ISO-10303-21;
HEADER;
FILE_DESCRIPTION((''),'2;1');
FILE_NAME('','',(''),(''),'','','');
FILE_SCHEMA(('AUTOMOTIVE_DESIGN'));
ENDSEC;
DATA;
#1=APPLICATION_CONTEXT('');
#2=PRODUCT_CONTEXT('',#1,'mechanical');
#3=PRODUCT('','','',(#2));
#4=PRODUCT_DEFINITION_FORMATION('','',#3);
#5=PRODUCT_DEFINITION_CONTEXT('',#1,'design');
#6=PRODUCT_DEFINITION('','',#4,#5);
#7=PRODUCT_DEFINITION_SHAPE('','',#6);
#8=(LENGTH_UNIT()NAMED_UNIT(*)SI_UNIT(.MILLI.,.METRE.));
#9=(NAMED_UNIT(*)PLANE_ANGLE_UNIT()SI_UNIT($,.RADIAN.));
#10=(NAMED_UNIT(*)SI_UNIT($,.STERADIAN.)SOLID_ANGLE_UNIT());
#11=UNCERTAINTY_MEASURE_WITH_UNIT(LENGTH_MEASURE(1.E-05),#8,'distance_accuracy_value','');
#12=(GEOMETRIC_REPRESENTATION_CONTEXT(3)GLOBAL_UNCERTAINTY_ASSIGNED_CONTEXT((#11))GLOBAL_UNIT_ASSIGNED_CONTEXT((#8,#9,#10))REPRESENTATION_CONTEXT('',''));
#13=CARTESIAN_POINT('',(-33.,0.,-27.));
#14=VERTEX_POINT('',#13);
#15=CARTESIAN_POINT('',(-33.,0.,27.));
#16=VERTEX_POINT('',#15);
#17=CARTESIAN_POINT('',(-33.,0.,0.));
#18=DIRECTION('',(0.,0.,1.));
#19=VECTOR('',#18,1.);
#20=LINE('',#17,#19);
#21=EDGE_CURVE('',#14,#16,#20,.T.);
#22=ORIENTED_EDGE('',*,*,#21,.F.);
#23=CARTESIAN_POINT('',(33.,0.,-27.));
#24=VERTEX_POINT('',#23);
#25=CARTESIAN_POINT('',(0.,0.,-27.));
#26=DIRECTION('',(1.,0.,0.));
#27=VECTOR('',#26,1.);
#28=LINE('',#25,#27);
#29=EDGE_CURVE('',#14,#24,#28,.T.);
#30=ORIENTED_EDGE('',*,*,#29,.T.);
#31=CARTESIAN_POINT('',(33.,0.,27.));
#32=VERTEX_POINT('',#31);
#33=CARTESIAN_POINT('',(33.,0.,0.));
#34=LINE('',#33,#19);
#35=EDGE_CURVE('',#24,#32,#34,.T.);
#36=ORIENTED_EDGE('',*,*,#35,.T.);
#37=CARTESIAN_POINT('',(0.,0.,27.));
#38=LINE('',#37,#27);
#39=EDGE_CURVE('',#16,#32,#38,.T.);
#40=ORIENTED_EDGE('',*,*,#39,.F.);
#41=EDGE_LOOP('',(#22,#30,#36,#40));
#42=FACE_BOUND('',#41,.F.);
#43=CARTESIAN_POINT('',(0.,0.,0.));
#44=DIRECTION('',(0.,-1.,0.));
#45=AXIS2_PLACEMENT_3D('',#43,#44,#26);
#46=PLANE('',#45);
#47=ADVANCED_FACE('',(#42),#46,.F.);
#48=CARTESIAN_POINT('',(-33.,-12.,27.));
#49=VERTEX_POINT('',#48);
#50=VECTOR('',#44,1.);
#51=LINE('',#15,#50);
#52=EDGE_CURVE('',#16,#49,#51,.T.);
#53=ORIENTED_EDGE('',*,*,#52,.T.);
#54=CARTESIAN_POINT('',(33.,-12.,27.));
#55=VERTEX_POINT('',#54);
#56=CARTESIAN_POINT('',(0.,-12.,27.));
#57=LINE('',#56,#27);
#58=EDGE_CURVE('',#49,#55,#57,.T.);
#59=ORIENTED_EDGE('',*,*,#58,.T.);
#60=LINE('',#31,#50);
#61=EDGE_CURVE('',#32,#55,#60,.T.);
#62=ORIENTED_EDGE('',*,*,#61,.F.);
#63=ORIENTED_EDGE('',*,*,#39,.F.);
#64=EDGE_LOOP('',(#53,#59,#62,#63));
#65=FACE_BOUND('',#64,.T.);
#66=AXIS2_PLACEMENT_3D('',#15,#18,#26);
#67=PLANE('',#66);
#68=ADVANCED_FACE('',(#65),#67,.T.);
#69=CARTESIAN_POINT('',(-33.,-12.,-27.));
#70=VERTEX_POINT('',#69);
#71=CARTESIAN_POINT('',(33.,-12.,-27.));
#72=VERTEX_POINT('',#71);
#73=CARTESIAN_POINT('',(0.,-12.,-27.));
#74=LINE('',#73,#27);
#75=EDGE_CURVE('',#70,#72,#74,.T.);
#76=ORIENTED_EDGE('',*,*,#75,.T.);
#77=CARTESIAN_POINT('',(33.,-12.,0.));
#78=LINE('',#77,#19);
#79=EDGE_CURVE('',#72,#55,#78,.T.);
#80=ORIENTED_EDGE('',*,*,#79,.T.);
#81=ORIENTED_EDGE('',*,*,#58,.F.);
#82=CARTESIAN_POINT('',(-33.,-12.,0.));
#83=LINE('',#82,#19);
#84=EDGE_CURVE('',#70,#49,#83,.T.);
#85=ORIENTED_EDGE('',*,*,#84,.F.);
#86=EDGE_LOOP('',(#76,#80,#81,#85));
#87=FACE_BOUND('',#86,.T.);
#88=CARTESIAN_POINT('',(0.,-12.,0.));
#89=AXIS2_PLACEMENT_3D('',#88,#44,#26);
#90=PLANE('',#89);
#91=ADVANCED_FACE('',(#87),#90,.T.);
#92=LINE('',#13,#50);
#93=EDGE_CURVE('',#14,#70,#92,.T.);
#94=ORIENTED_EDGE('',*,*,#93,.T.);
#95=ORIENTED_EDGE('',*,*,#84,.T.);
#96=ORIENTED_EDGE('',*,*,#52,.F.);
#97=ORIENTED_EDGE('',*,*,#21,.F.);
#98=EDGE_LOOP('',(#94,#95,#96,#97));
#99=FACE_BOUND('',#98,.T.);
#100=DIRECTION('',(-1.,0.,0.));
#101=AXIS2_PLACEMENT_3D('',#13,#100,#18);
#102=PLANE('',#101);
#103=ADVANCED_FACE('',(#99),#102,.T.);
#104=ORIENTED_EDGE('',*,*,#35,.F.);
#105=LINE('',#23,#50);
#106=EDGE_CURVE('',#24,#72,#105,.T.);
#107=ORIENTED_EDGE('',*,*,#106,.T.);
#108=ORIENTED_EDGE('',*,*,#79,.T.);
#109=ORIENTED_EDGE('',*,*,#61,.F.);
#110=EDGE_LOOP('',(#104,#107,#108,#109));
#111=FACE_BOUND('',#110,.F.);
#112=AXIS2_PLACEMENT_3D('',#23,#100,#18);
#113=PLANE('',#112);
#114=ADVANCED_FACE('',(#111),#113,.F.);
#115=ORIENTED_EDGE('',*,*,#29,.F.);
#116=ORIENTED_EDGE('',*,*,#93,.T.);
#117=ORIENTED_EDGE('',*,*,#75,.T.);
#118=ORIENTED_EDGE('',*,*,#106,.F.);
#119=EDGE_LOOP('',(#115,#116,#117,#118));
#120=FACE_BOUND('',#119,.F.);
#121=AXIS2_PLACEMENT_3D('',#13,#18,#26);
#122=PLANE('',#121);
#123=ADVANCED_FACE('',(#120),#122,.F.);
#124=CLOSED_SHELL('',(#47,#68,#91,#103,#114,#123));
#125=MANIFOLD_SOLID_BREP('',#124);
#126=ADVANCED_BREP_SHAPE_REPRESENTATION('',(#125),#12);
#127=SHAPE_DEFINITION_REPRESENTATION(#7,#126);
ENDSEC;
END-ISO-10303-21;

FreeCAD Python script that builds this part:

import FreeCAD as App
import Part
import Sketcher

V = App.Vector

doc = App.newDocument("Part")
body = doc.addObject("PartDesign::Body", "Body")

# Sketch on XZ plane
sketch1 = doc.addObject("Sketcher::SketchObject", "Sketch")
body.addObject(sketch1)
sketch1.AttachmentSupport = (doc.XZ_Plane, [""])
sketch1.MapMode = "FlatFace"
sketch1.addGeometry(Part.LineSegment(V(-101, 27, 0), V(-101, -27, 0)), False)
sketch1.addGeometry(Part.LineSegment(V(-101, -27, 0), V(109, -27, 0)), False)
sketch1.addGeometry(Part.LineSegment(V(109, -27, 0), V(109, 27, 0)), False)
sketch1.addGeometry(Part.LineSegment(V(109, 27, 0), V(-101, 27, 0)), False)
sketch1.addConstraint(Sketcher.Constraint("Coincident", 0, 2, 1, 1))
sketch1.addConstraint(Sketcher.Constraint("Coincident", 1, 2, 2, 1))
sketch1.addConstraint(Sketcher.Constraint("Coincident", 2, 2, 3, 1))
sketch1.addConstraint(Sketcher.Constraint("Coincident", 3, 2, 0, 1))
sketch1.addConstraint(Sketcher.Constraint("Vertical", 0))
sketch1.addConstraint(Sketcher.Constraint("Horizontal", 1))
sketch1.addConstraint(Sketcher.Constraint("Vertical", 2))
sketch1.addConstraint(Sketcher.Constraint("Horizontal", 3))
sketch1.addConstraint(Sketcher.Constraint("DistanceX", 1, 1, 1, 2, 210.0))
sketch1.addConstraint(Sketcher.Constraint("DistanceY", 0, 2, 0, 1, 54.0))
sketch1.addConstraint(Sketcher.Constraint("DistanceY", 0, 2, -1, 1, 27.0))
sketch1.addConstraint(Sketcher.Constraint("DistanceX", 0, 2, -1, 1, 101.436654))
pad1 = doc.addObject("PartDesign::Pad", "Pad")
body.addObject(pad1)
pad1.Profile = sketch1
pad1.Length = 12
body2 = doc.addObject("PartDesign::Body", "Body001")

# Sketch on XZ plane
sketch2 = doc.addObject("Sketcher::SketchObject", "Sketch001")
body2.addObject(sketch2)
sketch2.AttachmentSupport = (doc.getObject("XZ_Plane001"), [""])
sketch2.MapMode = "FlatFace"
sketch2.addGeometry(Part.LineSegment(V(-45, 31, 0), V(-45, -37, 0)), False)
sketch2.addGeometry(Part.LineSegment(V(-45, -37, 0), V(45, -37, 0)), False)
sketch2.addGeometry(Part.LineSegment(V(45, -37, 0), V(45, 31, 0)), False)
sketch2.addGeometry(Part.LineSegment(V(45, 31, 0), V(-45, 31, 0)), False)
sketch2.addConstraint(Sketcher.Constraint("Coincident", 0, 2, 1, 1))
sketch2.addConstraint(Sketcher.Constraint("Coincident", 1, 2, 2, 1))
sketch2.addConstraint(Sketcher.Constraint("Coincident", 2, 2, 3, 1))
sketch2.addConstraint(Sketcher.Constraint("Coincident", 3, 2, 0, 1))
sketch2.addConstraint(Sketcher.Constraint("Vertical", 0))
sketch2.addConstraint(Sketcher.Constraint("Horizontal", 1))
sketch2.addConstraint(Sketcher.Constraint("Vertical", 2))
sketch2.addConstraint(Sketcher.Constraint("Horizontal", 3))
sketch2.addConstraint(Sketcher.Constraint("DistanceX", 1, 1, 1, 2, 90.0))
sketch2.addConstraint(Sketcher.Constraint("DistanceY", 0, 2, 0, 1, 68.0))
sketch2.addConstraint(Sketcher.Constraint("DistanceX", 0, 2, -1, 1, 45.0))
sketch2.addConstraint(Sketcher.Constraint("DistanceY", 0, 2, -1, 1, 36.549982))
pad2 = doc.addObject("PartDesign::Pad", "Pad001")
body2.addObject(pad2)
pad2.Profile = sketch2
pad2.Length = 12
body3 = doc.addObject("PartDesign::Body", "Body002")

# Sketch on XZ plane
sketch3 = doc.addObject("Sketcher::SketchObject", "Sketch002")
body3.addObject(sketch3)
sketch3.AttachmentSupport = (doc.getObject("XZ_Plane002"), [""])
sketch3.MapMode = "FlatFace"
sketch3.addGeometry(Part.LineSegment(V(-45, 27, 0), V(-45, -27, 0)), False)
sketch3.addGeometry(Part.LineSegment(V(-45, -27, 0), V(45, -27, 0)), False)
sketch3.addGeometry(Part.LineSegment(V(45, -27, 0), V(45, 27, 0)), False)
sketch3.addGeometry(Part.LineSegment(V(45, 27, 0), V(-45, 27, 0)), False)
sketch3.addConstraint(Sketcher.Constraint("Coincident", 0, 2, 1, 1))
sketch3.addConstraint(Sketcher.Constraint("Coincident", 1, 2, 2, 1))
sketch3.addConstraint(Sketcher.Constraint("Coincident", 2, 2, 3, 1))
sketch3.addConstraint(Sketcher.Constraint("Coincident", 3, 2, 0, 1))
sketch3.addConstraint(Sketcher.Constraint("Vertical", 0))
sketch3.addConstraint(Sketcher.Constraint("Horizontal", 1))
sketch3.addConstraint(Sketcher.Constraint("Vertical", 2))
sketch3.addConstraint(Sketcher.Constraint("Horizontal", 3))
sketch3.addConstraint(Sketcher.Constraint("Symmetric", 0, 2, 2, 2, -1, 1))
sketch3.addConstraint(Sketcher.Constraint("DistanceX", 1, 1, 1, 2, 90.0))
sketch3.addConstraint(Sketcher.Constraint("DistanceY", 0, 2, 0, 1, 54.0))
pad3 = doc.addObject("PartDesign::Pad", "Pad002")
body3.addObject(pad3)
pad3.Profile = sketch3
pad3.Length = 12
body4 = doc.addObject("PartDesign::Body", "Body003")

# Sketch on XZ plane
sketch4 = doc.addObject("Sketcher::SketchObject", "Sketch003")
body4.addObject(sketch4)
sketch4.AttachmentSupport = (doc.getObject("XZ_Plane003"), [""])
sketch4.MapMode = "FlatFace"
sketch4.addGeometry(Part.LineSegment(V(-33, 27, 0), V(-33, -27, 0)), False)
sketch4.addGeometry(Part.LineSegment(V(-33, -27, 0), V(33, -27, 0)), False)
sketch4.addGeometry(Part.LineSegment(V(33, -27, 0), V(33, 27, 0)), False)
sketch4.addGeometry(Part.LineSegment(V(33, 27, 0), V(-33, 27, 0)), False)
sketch4.addConstraint(Sketcher.Constraint("Coincident", 0, 2, 1, 1))
sketch4.addConstraint(Sketcher.Constraint("Coincident", 1, 2, 2, 1))
sketch4.addConstraint(Sketcher.Constraint("Coincident", 2, 2, 3, 1))
sketch4.addConstraint(Sketcher.Constraint("Coincident", 3, 2, 0, 1))
sketch4.addConstraint(Sketcher.Constraint("Vertical", 0))
sketch4.addConstraint(Sketcher.Constraint("Horizontal", 1))
sketch4.addConstraint(Sketcher.Constraint("Vertical", 2))
sketch4.addConstraint(Sketcher.Constraint("Horizontal", 3))
sketch4.addConstraint(Sketcher.Constraint("Symmetric", 0, 2, 2, 2, -1, 1))
sketch4.addConstraint(Sketcher.Constraint("DistanceX", 1, 1, 1, 2, 66.0))
sketch4.addConstraint(Sketcher.Constraint("DistanceY", 0, 2, 0, 1, 54.0))
pad4 = doc.addObject("PartDesign::Pad", "Pad003")
body4.addObject(pad4)
pad4.Profile = sketch4
pad4.Length = 12
body.Visibility = False
body2.Visibility = False
body3.Visibility = False

doc.recompute()
